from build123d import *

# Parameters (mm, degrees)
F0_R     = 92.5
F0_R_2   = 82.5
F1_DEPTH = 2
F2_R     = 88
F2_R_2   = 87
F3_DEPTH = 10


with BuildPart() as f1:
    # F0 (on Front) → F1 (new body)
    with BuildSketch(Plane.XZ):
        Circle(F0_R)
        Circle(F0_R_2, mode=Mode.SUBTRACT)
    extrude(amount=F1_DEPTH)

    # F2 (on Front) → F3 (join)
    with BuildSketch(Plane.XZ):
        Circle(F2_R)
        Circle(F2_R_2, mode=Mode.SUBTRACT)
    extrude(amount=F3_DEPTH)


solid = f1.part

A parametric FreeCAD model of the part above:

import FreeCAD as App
import Part
import Sketcher

doc = App.newDocument("Part")
body = doc.addObject("PartDesign::Body", "Body")

# Sketch on XZ plane
sketch1 = body.newObject("Sketcher::SketchObject", "Sketch")
sketch1.AttachmentSupport = (doc.getObject("XZ_Plane"), [""])
sketch1.MapMode = "FlatFace"
sketch1.addGeometry([
    Part.Circle(App.Vector(0, 0, 0), App.Vector(0, 0, 1), 92),
    Part.Circle(App.Vector(0, 0, 0), App.Vector(0, 0, 1), 82),
], False)
sketch1.addConstraint([
    Sketcher.Constraint("Coincident", 0, 3, -1, 1),
    Sketcher.Constraint("Coincident", 1, 3, -1, 1),
    Sketcher.Constraint("Diameter", 0, 185.0),
    Sketcher.Constraint("Diameter", 1, 165.0),
])
pad1 = body.newObject("PartDesign::Pad", "Pad")
pad1.Profile = sketch1
pad1.Length = 2

# Sketch on XZ plane
sketch2 = body.newObject("Sketcher::SketchObject", "Sketch001")
sketch2.AttachmentSupport = (doc.getObject("XZ_Plane"), [""])
sketch2.MapMode = "FlatFace"
sketch2.addGeometry([
    Part.Circle(App.Vector(0, 0, 0), App.Vector(0, 0, 1), 88),
    Part.Circle(App.Vector(0, 0, 0), App.Vector(0, 0, 1), 87),
], False)
sketch2.addConstraint([
    Sketcher.Constraint("Coincident", 0, 3, -1, 1),
    Sketcher.Constraint("Coincident", 1, 3, -1, 1),
    Sketcher.Constraint("Diameter", 0, 176.0),
    Sketcher.Constraint("Diameter", 1, 174.0),
])
pad2 = body.newObject("PartDesign::Pad", "Pad001")
pad2.Profile = sketch2
pad2.Length = 10

doc.recompute()
